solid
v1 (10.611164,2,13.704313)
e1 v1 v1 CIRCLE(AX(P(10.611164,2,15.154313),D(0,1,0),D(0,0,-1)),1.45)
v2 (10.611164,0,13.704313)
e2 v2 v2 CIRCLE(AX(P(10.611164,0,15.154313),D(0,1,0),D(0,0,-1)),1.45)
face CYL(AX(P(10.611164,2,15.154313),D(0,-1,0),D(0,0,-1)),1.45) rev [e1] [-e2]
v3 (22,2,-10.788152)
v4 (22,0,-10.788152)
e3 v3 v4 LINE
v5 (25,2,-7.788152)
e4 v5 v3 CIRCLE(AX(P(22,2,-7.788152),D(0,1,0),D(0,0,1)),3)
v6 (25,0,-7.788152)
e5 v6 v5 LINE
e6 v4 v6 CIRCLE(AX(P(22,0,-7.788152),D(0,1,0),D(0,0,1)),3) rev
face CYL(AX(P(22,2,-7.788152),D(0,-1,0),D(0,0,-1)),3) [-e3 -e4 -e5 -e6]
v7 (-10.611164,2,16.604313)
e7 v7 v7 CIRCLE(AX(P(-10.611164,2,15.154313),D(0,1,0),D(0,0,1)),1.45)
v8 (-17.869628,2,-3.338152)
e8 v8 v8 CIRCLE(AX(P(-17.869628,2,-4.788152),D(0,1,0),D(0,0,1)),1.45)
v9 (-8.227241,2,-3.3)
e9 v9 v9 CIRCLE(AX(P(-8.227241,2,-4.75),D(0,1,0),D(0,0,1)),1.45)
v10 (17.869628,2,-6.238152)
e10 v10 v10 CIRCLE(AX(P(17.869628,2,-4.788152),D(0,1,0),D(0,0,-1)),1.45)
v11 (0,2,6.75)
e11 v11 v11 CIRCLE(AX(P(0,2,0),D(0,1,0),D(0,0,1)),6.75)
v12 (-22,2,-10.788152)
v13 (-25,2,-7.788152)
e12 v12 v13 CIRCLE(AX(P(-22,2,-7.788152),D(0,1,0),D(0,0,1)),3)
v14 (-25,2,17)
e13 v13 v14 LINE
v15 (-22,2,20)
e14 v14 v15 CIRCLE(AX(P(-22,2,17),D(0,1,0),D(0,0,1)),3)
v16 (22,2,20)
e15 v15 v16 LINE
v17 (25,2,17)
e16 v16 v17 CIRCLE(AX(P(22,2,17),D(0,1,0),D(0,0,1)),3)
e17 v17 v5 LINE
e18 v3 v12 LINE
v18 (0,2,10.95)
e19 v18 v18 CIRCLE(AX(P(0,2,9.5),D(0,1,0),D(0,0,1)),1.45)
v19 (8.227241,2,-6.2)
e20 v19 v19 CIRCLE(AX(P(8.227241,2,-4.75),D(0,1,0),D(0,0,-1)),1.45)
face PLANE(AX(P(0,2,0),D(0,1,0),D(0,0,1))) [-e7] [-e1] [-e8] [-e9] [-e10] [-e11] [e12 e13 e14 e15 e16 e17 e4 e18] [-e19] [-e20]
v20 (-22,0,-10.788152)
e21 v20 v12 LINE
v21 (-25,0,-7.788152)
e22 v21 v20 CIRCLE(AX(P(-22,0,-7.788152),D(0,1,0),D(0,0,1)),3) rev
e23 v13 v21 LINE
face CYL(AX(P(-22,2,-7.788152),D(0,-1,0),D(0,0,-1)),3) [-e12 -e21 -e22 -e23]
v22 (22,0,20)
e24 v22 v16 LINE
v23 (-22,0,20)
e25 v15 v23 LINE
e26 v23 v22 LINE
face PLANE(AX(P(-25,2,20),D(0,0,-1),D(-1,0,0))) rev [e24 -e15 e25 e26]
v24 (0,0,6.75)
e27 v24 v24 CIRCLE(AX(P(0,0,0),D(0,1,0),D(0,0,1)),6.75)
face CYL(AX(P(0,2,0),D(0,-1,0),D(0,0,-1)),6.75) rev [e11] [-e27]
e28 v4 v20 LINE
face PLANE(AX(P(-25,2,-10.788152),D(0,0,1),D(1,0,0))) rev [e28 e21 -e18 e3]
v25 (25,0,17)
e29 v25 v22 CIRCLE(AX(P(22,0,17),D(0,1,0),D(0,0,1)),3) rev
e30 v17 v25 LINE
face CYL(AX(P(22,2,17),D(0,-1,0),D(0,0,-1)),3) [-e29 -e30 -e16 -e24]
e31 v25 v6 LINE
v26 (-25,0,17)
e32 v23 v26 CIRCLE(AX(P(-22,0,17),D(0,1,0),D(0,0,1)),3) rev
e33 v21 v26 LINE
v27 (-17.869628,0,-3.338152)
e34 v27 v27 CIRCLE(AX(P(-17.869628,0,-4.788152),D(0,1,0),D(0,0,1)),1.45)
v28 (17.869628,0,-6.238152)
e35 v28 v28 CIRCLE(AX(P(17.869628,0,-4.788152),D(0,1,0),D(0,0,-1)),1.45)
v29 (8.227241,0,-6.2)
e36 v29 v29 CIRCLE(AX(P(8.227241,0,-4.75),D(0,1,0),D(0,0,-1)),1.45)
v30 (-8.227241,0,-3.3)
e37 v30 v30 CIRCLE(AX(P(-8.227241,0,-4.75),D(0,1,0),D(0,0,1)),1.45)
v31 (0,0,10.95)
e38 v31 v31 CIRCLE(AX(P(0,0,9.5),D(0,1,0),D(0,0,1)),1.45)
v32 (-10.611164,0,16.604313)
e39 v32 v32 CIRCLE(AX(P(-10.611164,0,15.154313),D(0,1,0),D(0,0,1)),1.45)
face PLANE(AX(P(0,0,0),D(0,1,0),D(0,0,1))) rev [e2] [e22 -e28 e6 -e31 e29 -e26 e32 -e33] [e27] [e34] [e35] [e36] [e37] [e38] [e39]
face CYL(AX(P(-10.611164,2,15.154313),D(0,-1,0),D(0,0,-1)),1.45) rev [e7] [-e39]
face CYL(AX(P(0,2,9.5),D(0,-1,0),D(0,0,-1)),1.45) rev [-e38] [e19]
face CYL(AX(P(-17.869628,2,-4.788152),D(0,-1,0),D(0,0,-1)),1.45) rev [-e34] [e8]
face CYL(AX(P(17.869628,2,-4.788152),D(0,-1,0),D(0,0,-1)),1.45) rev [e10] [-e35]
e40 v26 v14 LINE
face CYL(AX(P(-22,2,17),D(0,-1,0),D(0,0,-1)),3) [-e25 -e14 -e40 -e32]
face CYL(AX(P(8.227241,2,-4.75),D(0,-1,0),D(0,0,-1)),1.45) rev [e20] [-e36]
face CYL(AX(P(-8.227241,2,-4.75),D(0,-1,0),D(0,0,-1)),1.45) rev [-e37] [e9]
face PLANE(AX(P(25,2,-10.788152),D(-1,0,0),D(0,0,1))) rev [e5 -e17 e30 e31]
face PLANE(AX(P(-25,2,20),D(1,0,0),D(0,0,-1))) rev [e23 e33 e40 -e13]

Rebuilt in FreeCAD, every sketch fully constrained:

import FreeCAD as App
import Part
import Sketcher

V = App.Vector
Q = App.Units.Quantity


def edges_at(feature, points):
    """Names of the edges that pass closest to the given points."""
    edges = feature.Shape.Edges
    near = lambda p: min(range(len(edges)), key=lambda i: edges[i].distToShape(Part.Vertex(*p))[0])
    return sorted({f"Edge{near(p) + 1}" for p in points})


def add_polygon(sketch, points):
    """Adds a closed chain of lines whose ends are joined by coincident constraints."""
    first, n = sketch.GeometryCount, len(points)
    for a, b in zip(points, points[1:] + points[:1]):
        sketch.addGeometry(Part.LineSegment(App.Vector(*a, 0), App.Vector(*b, 0)), False)
    for i in range(n):
        sketch.addConstraint(Sketcher.Constraint("Coincident", first + i, 2, first + (i + 1) % n, 1))

doc = App.newDocument("Part")
body = doc.addObject("PartDesign::Body", "Body")

# Sketch on XZ plane
sketch1 = body.newObject("Sketcher::SketchObject", "Sketch")
sketch1.AttachmentSupport = (doc.getObject("XZ_Plane"), [""])
sketch1.MapMode = "FlatFace"
add_polygon(sketch1, [(-25, -10.8), (-25, 20), (25, 20), (25, -10.8)])  # lines 0-3
sketch1.addGeometry(Part.Circle(V(-10.6, 15.2, 0), V(0, 0, 1), 1.4), False)  # 4
sketch1.addGeometry(Part.Circle(V(10.6, 15.2, 0), V(0, 0, 1), 1.4), False)  # 5
sketch1.addGeometry(Part.Circle(V(0, 9.5, 0), V(0, 0, 1), 1.4), False)  # 6
sketch1.addGeometry(Part.Circle(V(-17.9, -4.8, 0), V(0, 0, 1), 1.4), False)  # 7
sketch1.addGeometry(Part.Circle(V(-8.2, -4.8, 0), V(0, 0, 1), 1.4), False)  # 8
sketch1.addGeometry(Part.Circle(V(0, 0, 0), V(0, 0, 1), 6.8), False)  # 9
sketch1.addGeometry(Part.Circle(V(8.2, -4.8, 0), V(0, 0, 1), 1.4), False)  # 10
sketch1.addGeometry(Part.Circle(V(17.9, -4.8, 0), V(0, 0, 1), 1.4), False)  # 11
sketch1.addConstraint(Sketcher.Constraint("Vertical", 0))
sketch1.addConstraint(Sketcher.Constraint("Horizontal", 1))
sketch1.addConstraint(Sketcher.Constraint("Vertical", 2))
sketch1.addConstraint(Sketcher.Constraint("Horizontal", 3))
sketch1.addConstraint(Sketcher.Constraint("Coincident", 9, 3, -1, 1))
sketch1.addConstraint(Sketcher.Constraint("Equal", 4, 5))
sketch1.addConstraint(Sketcher.Constraint("Equal", 5, 6))
sketch1.addConstraint(Sketcher.Constraint("Equal", 6, 7))
sketch1.addConstraint(Sketcher.Constraint("Equal", 7, 8))
sketch1.addConstraint(Sketcher.Constraint("Equal", 8, 10))
sketch1.addConstraint(Sketcher.Constraint("Equal", 10, 11))
sketch1.addConstraint(Sketcher.Constraint("Symmetric", 4, 3, 5, 3, -2))
sketch1.addConstraint(Sketcher.Constraint("Symmetric", 8, 3, 10, 3, -2))
sketch1.addConstraint(Sketcher.Constraint("Symmetric", 7, 3, 11, 3, -2))
sketch1.addConstraint(Sketcher.Constraint("PointOnObject", 6, 3, -2))
sketch1.addConstraint(Sketcher.Constraint("Diameter", 4, Q("2.9 mm")))
sketch1.addConstraint(Sketcher.Constraint("Diameter", 9, Q("13.5 mm")))
sketch1.addConstraint(Sketcher.Constraint("DistanceX", 1, 1, 1, 2, Q("50 mm")))
sketch1.addConstraint(Sketcher.Constraint("DistanceX", 0, 2, -1, 1, Q("25 mm")))
sketch1.addConstraint(Sketcher.Constraint("DistanceY", -1, 1, 0, 2, Q("20 mm")))
sketch1.addConstraint(Sketcher.Constraint("DistanceY", 2, 2, 11, 3, Q("6 mm")))
sketch1.addConstraint(Sketcher.Constraint("DistanceY", -1, 1, 6, 3, Q("9.5 mm")))
sketch1.addConstraint(Sketcher.Constraint("DistanceY", 8, 3, -1, 1, Q("4.75 mm")))
sketch1.addConstraint(Sketcher.Constraint("DistanceY", 0, 1, 0, 2, Q("30.788152 mm")))
sketch1.addConstraint(Sketcher.Constraint("DistanceX", 8, 3, -1, 1, Q("8.227241 mm")))
sketch1.addConstraint(Sketcher.Constraint("DistanceX", 4, 3, 5, 3, Q("21.222328 mm")))
sketch1.addConstraint(Sketcher.Constraint("DistanceX", 7, 3, 5, 3, Q("28.480792 mm")))
sketch1.addConstraint(Sketcher.Constraint("DistanceY", -1, 1, 4, 3, Q("15.154313 mm")))
pad1 = body.newObject("PartDesign::Pad", "Pad")
pad1.Profile = sketch1
pad1.Length = 2
pad1.Reversed = True
doc.recompute()

fillet = body.newObject("PartDesign::Fillet", "Fillet")
fillet.Base = (pad1, edges_at(pad1, [
    (25, 1, 20),
    (-25, 1, 20),
    (-25, 1, -10.788),
    (25, 1, -10.788),
]))
fillet.Radius = 3

doc.recompute()
